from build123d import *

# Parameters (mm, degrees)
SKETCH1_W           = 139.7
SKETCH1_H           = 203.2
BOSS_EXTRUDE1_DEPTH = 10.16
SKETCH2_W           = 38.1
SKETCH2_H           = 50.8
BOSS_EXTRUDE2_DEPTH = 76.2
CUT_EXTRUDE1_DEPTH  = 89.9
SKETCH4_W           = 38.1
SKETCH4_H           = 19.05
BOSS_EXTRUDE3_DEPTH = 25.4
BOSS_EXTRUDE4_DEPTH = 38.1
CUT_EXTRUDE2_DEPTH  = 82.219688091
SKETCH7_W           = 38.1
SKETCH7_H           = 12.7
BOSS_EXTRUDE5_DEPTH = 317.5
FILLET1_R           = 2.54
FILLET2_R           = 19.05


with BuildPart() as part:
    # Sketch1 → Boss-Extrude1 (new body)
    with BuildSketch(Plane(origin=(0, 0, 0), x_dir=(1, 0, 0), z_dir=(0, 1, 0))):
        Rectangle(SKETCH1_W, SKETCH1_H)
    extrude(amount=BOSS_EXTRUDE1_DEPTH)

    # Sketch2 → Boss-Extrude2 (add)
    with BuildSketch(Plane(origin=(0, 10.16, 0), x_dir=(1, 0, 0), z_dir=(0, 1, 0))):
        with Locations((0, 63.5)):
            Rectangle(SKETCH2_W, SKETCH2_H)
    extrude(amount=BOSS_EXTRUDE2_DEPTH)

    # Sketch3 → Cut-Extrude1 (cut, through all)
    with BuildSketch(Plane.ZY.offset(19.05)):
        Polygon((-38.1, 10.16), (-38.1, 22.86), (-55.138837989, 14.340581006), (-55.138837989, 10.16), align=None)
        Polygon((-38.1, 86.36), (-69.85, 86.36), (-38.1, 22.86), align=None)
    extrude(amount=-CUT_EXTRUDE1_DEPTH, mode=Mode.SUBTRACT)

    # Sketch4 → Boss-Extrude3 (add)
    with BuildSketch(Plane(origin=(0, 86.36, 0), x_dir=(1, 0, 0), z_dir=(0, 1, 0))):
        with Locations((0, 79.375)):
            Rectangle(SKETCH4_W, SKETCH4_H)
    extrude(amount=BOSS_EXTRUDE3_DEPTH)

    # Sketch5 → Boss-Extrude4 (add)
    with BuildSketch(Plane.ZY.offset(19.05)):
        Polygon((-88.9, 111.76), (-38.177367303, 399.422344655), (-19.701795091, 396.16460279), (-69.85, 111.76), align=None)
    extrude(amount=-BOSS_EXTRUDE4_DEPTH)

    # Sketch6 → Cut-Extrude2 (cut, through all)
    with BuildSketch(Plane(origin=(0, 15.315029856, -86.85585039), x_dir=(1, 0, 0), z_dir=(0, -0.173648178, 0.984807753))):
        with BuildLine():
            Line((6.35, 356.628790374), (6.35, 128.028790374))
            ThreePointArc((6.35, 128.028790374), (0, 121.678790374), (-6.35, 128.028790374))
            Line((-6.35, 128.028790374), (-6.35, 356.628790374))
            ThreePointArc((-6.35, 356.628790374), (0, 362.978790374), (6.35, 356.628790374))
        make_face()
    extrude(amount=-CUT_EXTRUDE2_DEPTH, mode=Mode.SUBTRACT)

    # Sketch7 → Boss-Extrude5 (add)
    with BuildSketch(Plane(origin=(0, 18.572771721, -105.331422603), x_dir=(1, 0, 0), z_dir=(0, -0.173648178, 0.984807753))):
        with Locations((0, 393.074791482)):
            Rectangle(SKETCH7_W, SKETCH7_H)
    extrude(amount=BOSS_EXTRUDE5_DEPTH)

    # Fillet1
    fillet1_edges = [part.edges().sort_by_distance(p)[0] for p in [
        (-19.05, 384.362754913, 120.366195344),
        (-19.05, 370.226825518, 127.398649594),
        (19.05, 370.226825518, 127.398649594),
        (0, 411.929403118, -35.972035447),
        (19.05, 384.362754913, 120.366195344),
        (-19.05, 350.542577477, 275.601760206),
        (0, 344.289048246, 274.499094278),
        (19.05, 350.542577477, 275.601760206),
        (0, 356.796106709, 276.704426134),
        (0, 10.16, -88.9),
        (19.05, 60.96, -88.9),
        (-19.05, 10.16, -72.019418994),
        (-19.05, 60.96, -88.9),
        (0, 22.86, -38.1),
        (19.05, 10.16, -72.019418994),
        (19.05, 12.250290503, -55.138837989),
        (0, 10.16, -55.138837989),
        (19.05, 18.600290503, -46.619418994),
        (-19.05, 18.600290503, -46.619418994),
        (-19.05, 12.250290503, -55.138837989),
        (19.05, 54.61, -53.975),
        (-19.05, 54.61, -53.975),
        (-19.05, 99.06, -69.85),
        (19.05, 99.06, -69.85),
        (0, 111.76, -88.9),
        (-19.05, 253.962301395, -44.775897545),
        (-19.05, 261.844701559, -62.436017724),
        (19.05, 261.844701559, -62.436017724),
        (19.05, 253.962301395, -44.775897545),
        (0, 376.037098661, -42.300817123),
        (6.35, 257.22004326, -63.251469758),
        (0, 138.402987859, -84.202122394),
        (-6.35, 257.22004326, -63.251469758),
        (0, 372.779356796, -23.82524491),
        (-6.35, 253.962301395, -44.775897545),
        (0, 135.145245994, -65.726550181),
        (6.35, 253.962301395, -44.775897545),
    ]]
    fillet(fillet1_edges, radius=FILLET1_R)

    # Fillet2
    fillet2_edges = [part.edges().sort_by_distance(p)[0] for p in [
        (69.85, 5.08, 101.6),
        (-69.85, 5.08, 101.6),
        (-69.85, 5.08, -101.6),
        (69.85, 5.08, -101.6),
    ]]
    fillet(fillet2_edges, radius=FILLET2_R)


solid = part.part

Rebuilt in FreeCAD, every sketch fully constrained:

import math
import FreeCAD as App
import Part
import Sketcher
from FreeCAD import Vector
Q = App.Units.Quantity


def edges_at(feature, points):
    """Names of the edges that pass closest to the given points."""
    edges = feature.Shape.Edges
    near = lambda p: min(range(len(edges)), key=lambda i: edges[i].distToShape(Part.Vertex(*p))[0])
    return sorted({f"Edge{near(p) + 1}" for p in points})

doc = App.newDocument("Part")
params = doc.addObject("Spreadsheet::Sheet", "Params")
for row, (alias, value) in enumerate([
    ("sketch1_height", "8 in"),
    ("sketch1_width", "5.5 in"),
    ("pad1_length", "0.4 in"),
    ("sketch2_height", "2 in"),
    ("sketch2_width", "1.5 in"),
    ("pad2_length", "3 in"),
    ("sketch3_width", "0.5 in"),
    ("sketch3_width2", "2.5 in"),
    ("sketch3_height", "1.25 in"),
    ("sketch3_length", "0.75 in"),
    ("sketch4_width", "1.5 in"),
    ("sketch4_height", "0.75 in"),
    ("pad3_length", "1 in"),
    ("sketch5_length", "11.5 in"),
    ("sketch5_height", "0.75 in"),
    ("pad4_length", "1.5 in"),
    ("sketch6_height", "9 in"),
    ("sketch6_radius", "0.25 in"),
    ("sketch7_width", "1.5 in"),
    ("sketch7_height", "0.5 in"),
    ("pad5_length", "12.5 in"),
    ("fillet_radius", "0.1 in"),
    ("fillet2_radius", "0.75 in"),
], start=1):
    params.set(f"A{row}", alias)
    params.set(f"B{row}", "=" + value)
    params.setAlias(f"B{row}", alias)

body = doc.addObject("PartDesign::Body", "Body")

sketch1 = body.newObject("Sketcher::SketchObject", "Sketch")
sketch1.AttachmentSupport = (doc.getObject("XZ_Plane"), [""])
sketch1.MapMode = "FlatFace"
sketch1.addGeometry([
    Part.LineSegment(Vector(-69.85, -101.6, 0), Vector(-69.85, 101.6, 0)),
    Part.LineSegment(Vector(-69.85, 101.6, 0), Vector(69.85, 101.6, 0)),
    Part.LineSegment(Vector(69.85, 101.6, 0), Vector(69.85, -101.6, 0)),
    Part.LineSegment(Vector(69.85, -101.6, 0), Vector(-69.85, -101.6, 0)),
], False)
sketch1.addConstraint([
    Sketcher.Constraint("Coincident", 0, 2, 1, 1),
    Sketcher.Constraint("Coincident", 1, 2, 2, 1),
    Sketcher.Constraint("Coincident", 2, 2, 3, 1),
    Sketcher.Constraint("Coincident", 3, 2, 0, 1),
    Sketcher.Constraint("Vertical", 0),
    Sketcher.Constraint("Horizontal", 1),
    Sketcher.Constraint("Vertical", 2),
    Sketcher.Constraint("Horizontal", 3),
    Sketcher.Constraint("Symmetric", 0, 2, 2, 2, -1, 1),
    Sketcher.Constraint("DistanceY", 0, 1, 0, 2, Q("8 in")),
    Sketcher.Constraint("DistanceX", 1, 1, 1, 2, Q("5.5 in")),
])
sketch1.setExpression("Constraints[9]", "Params.sketch1_height")
sketch1.setExpression("Constraints[10]", "Params.sketch1_width")
pad1 = body.newObject("PartDesign::Pad", "Pad")
pad1.Profile = sketch1
pad1.setExpression("Length", "Params.pad1_length")
pad1.Reversed = True

sketch2 = body.newObject("Sketcher::SketchObject", "Sketch001")
sketch2.AttachmentSupport = (doc.getObject("XZ_Plane"), [""])
sketch2.MapMode = "FlatFace"
sketch2.AttachmentOffset = App.Placement(Vector(0, 0, -0.4 * 25.4), App.Rotation())
sketch2.addGeometry([
    Part.LineSegment(Vector(-19.05, -88.9, 0), Vector(-19.05, -38.1, 0)),
    Part.LineSegment(Vector(-19.05, -38.1, 0), Vector(19.05, -38.1, 0)),
    Part.LineSegment(Vector(19.05, -38.1, 0), Vector(19.05, -88.9, 0)),
    Part.LineSegment(Vector(19.05, -88.9, 0), Vector(-19.05, -88.9, 0)),
], False)
sketch2.addConstraint([
    Sketcher.Constraint("Coincident", 0, 2, 1, 1),
    Sketcher.Constraint("Coincident", 1, 2, 2, 1),
    Sketcher.Constraint("Coincident", 2, 2, 3, 1),
    Sketcher.Constraint("Coincident", 3, 2, 0, 1),
    Sketcher.Constraint("Vertical", 0),
    Sketcher.Constraint("Horizontal", 1),
    Sketcher.Constraint("Vertical", 2),
    Sketcher.Constraint("Horizontal", 3),
    Sketcher.Constraint("DistanceY", 0, 1, 0, 2, Q("2 in")),
    Sketcher.Constraint("DistanceX", 1, 1, 1, 2, Q("1.5 in")),
    Sketcher.Constraint("DistanceY", 0, 2, -1, 1, Q("1.5 in")),
    Sketcher.Constraint("DistanceX", 0, 2, -1, 1, Q("0.75 in")),
])
sketch2.setExpression("Constraints[8]", "Params.sketch2_height")
sketch2.setExpression("Constraints[9]", "Params.sketch2_width")
pad2 = body.newObject("PartDesign::Pad", "Pad001")
pad2.Profile = sketch2
pad2.setExpression("Length", "Params.pad2_length")
pad2.Reversed = True

sketch3 = body.newObject("Sketcher::SketchObject", "Sketch002")
sketch3.AttachmentSupport = (doc.getObject("YZ_Plane"), [""])
sketch3.MapMode = "FlatFace"
sketch3.AttachmentOffset = App.Placement(Vector(0, 0, -0.75 * 25.4), App.Rotation())
sketch3.addGeometry([
    Part.LineSegment(Vector(10.16, -38.1, 0), Vector(22.86, -38.1, 0)),
    Part.LineSegment(Vector(22.86, -38.1, 0), Vector(14.340581, -55.138838, 0)),
    Part.LineSegment(Vector(14.340581, -55.138838, 0), Vector(10.16, -55.138838, 0)),
    Part.LineSegment(Vector(10.16, -55.138838, 0), Vector(10.16, -38.1, 0)),
    Part.LineSegment(Vector(86.36, -38.1, 0), Vector(86.36, -69.85, 0)),
    Part.LineSegment(Vector(86.36, -69.85, 0), Vector(22.86, -38.1, 0)),
    Part.LineSegment(Vector(22.86, -38.1, 0), Vector(86.36, -38.1, 0)),
], False)
sketch3.addConstraint([
    Sketcher.Constraint("Coincident", 0, 2, 1, 1),
    Sketcher.Constraint("Coincident", 1, 2, 2, 1),
    Sketcher.Constraint("Coincident", 2, 2, 3, 1),
    Sketcher.Constraint("Coincident", 3, 2, 0, 1),
    Sketcher.Constraint("Coincident", 4, 2, 5, 1),
    Sketcher.Constraint("Coincident", 5, 2, 6, 1),
    Sketcher.Constraint("Coincident", 6, 2, 4, 1),
    Sketcher.Constraint("Horizontal", 0),
    Sketcher.Constraint("Horizontal", 2),
    Sketcher.Constraint("Vertical", 3),
    Sketcher.Constraint("Vertical", 4),
    Sketcher.Constraint("Horizontal", 6),
    Sketcher.Constraint("Coincident", 5, 2, 0, 2),
    Sketcher.Constraint("Perpendicular", 1, 5),
    Sketcher.Constraint("DistanceX", 0, 1, 0, 2, Q("0.5 in")),
    Sketcher.Constraint("DistanceX", 6, 1, 6, 2, Q("2.5 in")),
    Sketcher.Constraint("DistanceY", 4, 2, 4, 1, Q("1.25 in")),
    Sketcher.Constraint("DistanceX", -1, 1, 0, 2, Q("0.9 in")),
    Sketcher.Constraint("DistanceY", 0, 2, -1, 1, Q("1.5 in")),
    Sketcher.Constraint("Distance", 1, Q("0.75 in")),
])
sketch3.setExpression("Constraints[14]", "Params.sketch3_width")
sketch3.setExpression("Constraints[15]", "Params.sketch3_width2")
sketch3.setExpression("Constraints[16]", "Params.sketch3_height")
sketch3.setExpression("Constraints[19]", "Params.sketch3_length")
pocket1 = body.newObject("PartDesign::Pocket", "Pocket")
pocket1.Profile = sketch3
pocket1.Type = "ThroughAll"
pocket1.Reversed = True

sketch4 = body.newObject("Sketcher::SketchObject", "Sketch003")
sketch4.AttachmentSupport = (doc.getObject("XZ_Plane"), [""])
sketch4.MapMode = "FlatFace"
sketch4.AttachmentOffset = App.Placement(Vector(0, 0, -3.4 * 25.4), App.Rotation())
sketch4.addGeometry([
    Part.LineSegment(Vector(-19.05, -88.9, 0), Vector(-19.05, -69.85, 0)),
    Part.LineSegment(Vector(-19.05, -69.85, 0), Vector(19.05, -69.85, 0)),
    Part.LineSegment(Vector(19.05, -69.85, 0), Vector(19.05, -88.9, 0)),
    Part.LineSegment(Vector(19.05, -88.9, 0), Vector(-19.05, -88.9, 0)),
], False)
sketch4.addConstraint([
    Sketcher.Constraint("Coincident", 0, 2, 1, 1),
    Sketcher.Constraint("Coincident", 1, 2, 2, 1),
    Sketcher.Constraint("Coincident", 2, 2, 3, 1),
    Sketcher.Constraint("Coincident", 3, 2, 0, 1),
    Sketcher.Constraint("Vertical", 0),
    Sketcher.Constraint("Horizontal", 1),
    Sketcher.Constraint("Vertical", 2),
    Sketcher.Constraint("Horizontal", 3),
    Sketcher.Constraint("DistanceX", 1, 1, 1, 2, Q("1.5 in")),
    Sketcher.Constraint("DistanceY", 0, 1, 0, 2, Q("0.75 in")),
    Sketcher.Constraint("DistanceY", 2, 2, -1, 1, Q("3.5 in")),
    Sketcher.Constraint("DistanceX", 0, 2, -1, 1, Q("0.75 in")),
])
sketch4.setExpression("Constraints[8]", "Params.sketch4_width")
sketch4.setExpression("Constraints[9]", "Params.sketch4_height")
pad3 = body.newObject("PartDesign::Pad", "Pad002")
pad3.Profile = sketch4
pad3.setExpression("Length", "Params.pad3_length")
pad3.Reversed = True

sketch5 = body.newObject("Sketcher::SketchObject", "Sketch004")
sketch5.AttachmentSupport = (doc.getObject("YZ_Plane"), [""])
sketch5.MapMode = "FlatFace"
sketch5.AttachmentOffset = App.Placement(Vector(0, 0, -0.75 * 25.4), App.Rotation())
sketch5.addGeometry([
    Part.LineSegment(Vector(399.422345, -38.177367, 0), Vector(111.76, -88.9, 0)),
    Part.LineSegment(Vector(111.76, -88.9, 0), Vector(111.76, -69.85, 0)),
    Part.LineSegment(Vector(111.76, -69.85, 0), Vector(396.164603, -19.701795, 0)),
    Part.LineSegment(Vector(396.164603, -19.701795, 0), Vector(399.422345, -38.177367, 0)),
], False)
sketch5.addConstraint([
    Sketcher.Constraint("Coincident", 0, 2, 1, 1),
    Sketcher.Constraint("Coincident", 1, 2, 2, 1),
    Sketcher.Constraint("Coincident", 2, 2, 3, 1),
    Sketcher.Constraint("Coincident", 3, 2, 0, 1),
    Sketcher.Constraint("Vertical", 1),
    Sketcher.Constraint("Parallel", 0, 2),
    Sketcher.Constraint("Perpendicular", 2, 3),
    Sketcher.Constraint("Angle", 0, Q("-170 deg")),
    Sketcher.Constraint("Distance", 0, Q("11.5 in")),
    Sketcher.Constraint("DistanceY", 1, 1, 1, 2, Q("0.75 in")),
    Sketcher.Constraint("DistanceX", -1, 1, 0, 2, Q("4.4 in")),
    Sketcher.Constraint("DistanceY", 0, 2, -1, 1, Q("3.5 in")),
])
sketch5.setExpression("Constraints[8]", "Params.sketch5_length")
sketch5.setExpression("Constraints[9]", "Params.sketch5_height")
pad4 = body.newObject("PartDesign::Pad", "Pad003")
pad4.Profile = sketch5
pad4.setExpression("Length", "Params.pad4_length")

sketch6 = body.newObject("Sketcher::SketchObject", "Sketch005")
sketch6.Placement = App.Placement(Vector(0, 15.31503, -86.85585), App.Rotation(Vector(1, 0, 0), Vector(0, 0.984807753, 0.173648178), Vector(0, -0.173648178, 0.984807753), "ZXY"))
sketch6.addGeometry([
    Part.LineSegment(Vector(6.35, 128.02879, 0), Vector(6.35, 356.62879, 0)),
    Part.ArcOfCircle(Part.Circle(Vector(0, 356.62879, 0), Vector(0, 0, 1), 6.35), math.radians(0), math.radians(180)),
    Part.LineSegment(Vector(-6.35, 356.62879, 0), Vector(-6.35, 128.02879, 0)),
    Part.ArcOfCircle(Part.Circle(Vector(0, 128.02879, 0), Vector(0, 0, 1), 6.35), math.radians(180), math.radians(360)),
], False)
sketch6.addConstraint([
    Sketcher.Constraint("Tangent", 0, 2, 1, 1),
    Sketcher.Constraint("Tangent", 1, 2, 2, 1),
    Sketcher.Constraint("Tangent", 2, 2, 3, 1),
    Sketcher.Constraint("Tangent", 3, 2, 0, 1),
    Sketcher.Constraint("Vertical", 0),
    Sketcher.Constraint("Vertical", 2),
    Sketcher.Constraint("PointOnObject", 1, 3, -2),
    Sketcher.Constraint("DistanceY", 0, 1, 0, 2, Q("9 in")),
    Sketcher.Constraint("Radius", 1, Q("0.25 in")),
    Sketcher.Constraint("DistanceY", -1, 1, 1, 3, Q("356.62879 mm")),
])
sketch6.setExpression("Constraints[7]", "Params.sketch6_height")
sketch6.setExpression("Constraints[8]", "Params.sketch6_radius")
pocket2 = body.newObject("PartDesign::Pocket", "Pocket001")
pocket2.Profile = sketch6
pocket2.Type = "ThroughAll"

sketch7 = body.newObject("Sketcher::SketchObject", "Sketch006")
sketch7.Placement = App.Placement(Vector(0, 18.572772, -105.331423), App.Rotation(Vector(1, 0, 0), Vector(0, 0.984807753, 0.173648178), Vector(0, -0.173648178, 0.984807753), "ZXY"))
sketch7.addGeometry([
    Part.LineSegment(Vector(-19.05, 399.424792, 0), Vector(-19.05, 386.724792, 0)),
    Part.LineSegment(Vector(-19.05, 386.724792, 0), Vector(19.05, 386.724792, 0)),
    Part.LineSegment(Vector(19.05, 386.724792, 0), Vector(19.05, 399.424792, 0)),
    Part.LineSegment(Vector(19.05, 399.424792, 0), Vector(-19.05, 399.424792, 0)),
], False)
sketch7.addConstraint([
    Sketcher.Constraint("Coincident", 0, 2, 1, 1),
    Sketcher.Constraint("Coincident", 1, 2, 2, 1),
    Sketcher.Constraint("Coincident", 2, 2, 3, 1),
    Sketcher.Constraint("Coincident", 3, 2, 0, 1),
    Sketcher.Constraint("Vertical", 0),
    Sketcher.Constraint("Horizontal", 1),
    Sketcher.Constraint("Vertical", 2),
    Sketcher.Constraint("Horizontal", 3),
    Sketcher.Constraint("DistanceX", 1, 1, 1, 2, Q("1.5 in")),
    Sketcher.Constraint("DistanceY", 0, 2, 0, 1, Q("0.5 in")),
    Sketcher.Constraint("DistanceX", 0, 2, -1, 1, Q("0.75 in")),
    Sketcher.Constraint("DistanceY", -1, 1, 0, 2, Q("386.724792 mm")),
])
sketch7.setExpression("Constraints[8]", "Params.sketch7_width")
sketch7.setExpression("Constraints[9]", "Params.sketch7_height")
pad5 = body.newObject("PartDesign::Pad", "Pad004")
pad5.Profile = sketch7
pad5.setExpression("Length", "Params.pad5_length")
doc.recompute()

fillet = body.newObject("PartDesign::Fillet", "Fillet")
fillet.Base = (pad5, edges_at(pad5, [
    (-19.05, 384.363, 120.366),
    (-19.05, 370.227, 127.399),
    (19.05, 370.227, 127.399),
    (0, 411.929, -35.972),
    (19.05, 384.363, 120.366),
    (-19.05, 350.543, 275.602),
    (0, 344.289, 274.499),
    (19.05, 350.543, 275.602),
    (0, 356.796, 276.704),
    (0, 10.16, -88.9),
    (19.05, 60.96, -88.9),
    (-19.05, 10.16, -72.019),
    (-19.05, 60.96, -88.9),
    (0, 22.86, -38.1),
    (19.05, 10.16, -72.019),
    (19.05, 12.25, -55.139),
    (0, 10.16, -55.139),
    (19.05, 18.6, -46.619),
    (-19.05, 18.6, -46.619),
    (-19.05, 12.25, -55.139),
    (19.05, 54.61, -53.975),
    (-19.05, 54.61, -53.975),
    (-19.05, 99.06, -69.85),
    (19.05, 99.06, -69.85),
    (0, 111.76, -88.9),
    (-19.05, 253.962, -44.776),
    (-19.05, 255.591, -63.539),
    (19.05, 255.591, -63.539),
    (19.05, 253.962, -44.776),
    (0, 376.037, -42.301),
    (6.35, 257.22, -63.251),
    (0, 138.403, -84.202),
    (-6.35, 257.22, -63.251),
    (0, 372.779, -23.825),
    (-6.35, 253.962, -44.776),
    (0, 135.145, -65.727),
    (6.35, 253.962, -44.776),
]))
fillet.setExpression("Radius", "Params.fillet_radius")
doc.recompute()

fillet2 = body.newObject("PartDesign::Fillet", "Fillet001")
fillet2.Base = (fillet, edges_at(fillet, [
    (69.85, 5.08, 101.6),
    (-69.85, 5.08, 101.6),
    (-69.85, 5.08, -101.6),
    (69.85, 5.08, -101.6),
]))
fillet2.setExpression("Radius", "Params.fillet2_radius")

doc.recompute()
